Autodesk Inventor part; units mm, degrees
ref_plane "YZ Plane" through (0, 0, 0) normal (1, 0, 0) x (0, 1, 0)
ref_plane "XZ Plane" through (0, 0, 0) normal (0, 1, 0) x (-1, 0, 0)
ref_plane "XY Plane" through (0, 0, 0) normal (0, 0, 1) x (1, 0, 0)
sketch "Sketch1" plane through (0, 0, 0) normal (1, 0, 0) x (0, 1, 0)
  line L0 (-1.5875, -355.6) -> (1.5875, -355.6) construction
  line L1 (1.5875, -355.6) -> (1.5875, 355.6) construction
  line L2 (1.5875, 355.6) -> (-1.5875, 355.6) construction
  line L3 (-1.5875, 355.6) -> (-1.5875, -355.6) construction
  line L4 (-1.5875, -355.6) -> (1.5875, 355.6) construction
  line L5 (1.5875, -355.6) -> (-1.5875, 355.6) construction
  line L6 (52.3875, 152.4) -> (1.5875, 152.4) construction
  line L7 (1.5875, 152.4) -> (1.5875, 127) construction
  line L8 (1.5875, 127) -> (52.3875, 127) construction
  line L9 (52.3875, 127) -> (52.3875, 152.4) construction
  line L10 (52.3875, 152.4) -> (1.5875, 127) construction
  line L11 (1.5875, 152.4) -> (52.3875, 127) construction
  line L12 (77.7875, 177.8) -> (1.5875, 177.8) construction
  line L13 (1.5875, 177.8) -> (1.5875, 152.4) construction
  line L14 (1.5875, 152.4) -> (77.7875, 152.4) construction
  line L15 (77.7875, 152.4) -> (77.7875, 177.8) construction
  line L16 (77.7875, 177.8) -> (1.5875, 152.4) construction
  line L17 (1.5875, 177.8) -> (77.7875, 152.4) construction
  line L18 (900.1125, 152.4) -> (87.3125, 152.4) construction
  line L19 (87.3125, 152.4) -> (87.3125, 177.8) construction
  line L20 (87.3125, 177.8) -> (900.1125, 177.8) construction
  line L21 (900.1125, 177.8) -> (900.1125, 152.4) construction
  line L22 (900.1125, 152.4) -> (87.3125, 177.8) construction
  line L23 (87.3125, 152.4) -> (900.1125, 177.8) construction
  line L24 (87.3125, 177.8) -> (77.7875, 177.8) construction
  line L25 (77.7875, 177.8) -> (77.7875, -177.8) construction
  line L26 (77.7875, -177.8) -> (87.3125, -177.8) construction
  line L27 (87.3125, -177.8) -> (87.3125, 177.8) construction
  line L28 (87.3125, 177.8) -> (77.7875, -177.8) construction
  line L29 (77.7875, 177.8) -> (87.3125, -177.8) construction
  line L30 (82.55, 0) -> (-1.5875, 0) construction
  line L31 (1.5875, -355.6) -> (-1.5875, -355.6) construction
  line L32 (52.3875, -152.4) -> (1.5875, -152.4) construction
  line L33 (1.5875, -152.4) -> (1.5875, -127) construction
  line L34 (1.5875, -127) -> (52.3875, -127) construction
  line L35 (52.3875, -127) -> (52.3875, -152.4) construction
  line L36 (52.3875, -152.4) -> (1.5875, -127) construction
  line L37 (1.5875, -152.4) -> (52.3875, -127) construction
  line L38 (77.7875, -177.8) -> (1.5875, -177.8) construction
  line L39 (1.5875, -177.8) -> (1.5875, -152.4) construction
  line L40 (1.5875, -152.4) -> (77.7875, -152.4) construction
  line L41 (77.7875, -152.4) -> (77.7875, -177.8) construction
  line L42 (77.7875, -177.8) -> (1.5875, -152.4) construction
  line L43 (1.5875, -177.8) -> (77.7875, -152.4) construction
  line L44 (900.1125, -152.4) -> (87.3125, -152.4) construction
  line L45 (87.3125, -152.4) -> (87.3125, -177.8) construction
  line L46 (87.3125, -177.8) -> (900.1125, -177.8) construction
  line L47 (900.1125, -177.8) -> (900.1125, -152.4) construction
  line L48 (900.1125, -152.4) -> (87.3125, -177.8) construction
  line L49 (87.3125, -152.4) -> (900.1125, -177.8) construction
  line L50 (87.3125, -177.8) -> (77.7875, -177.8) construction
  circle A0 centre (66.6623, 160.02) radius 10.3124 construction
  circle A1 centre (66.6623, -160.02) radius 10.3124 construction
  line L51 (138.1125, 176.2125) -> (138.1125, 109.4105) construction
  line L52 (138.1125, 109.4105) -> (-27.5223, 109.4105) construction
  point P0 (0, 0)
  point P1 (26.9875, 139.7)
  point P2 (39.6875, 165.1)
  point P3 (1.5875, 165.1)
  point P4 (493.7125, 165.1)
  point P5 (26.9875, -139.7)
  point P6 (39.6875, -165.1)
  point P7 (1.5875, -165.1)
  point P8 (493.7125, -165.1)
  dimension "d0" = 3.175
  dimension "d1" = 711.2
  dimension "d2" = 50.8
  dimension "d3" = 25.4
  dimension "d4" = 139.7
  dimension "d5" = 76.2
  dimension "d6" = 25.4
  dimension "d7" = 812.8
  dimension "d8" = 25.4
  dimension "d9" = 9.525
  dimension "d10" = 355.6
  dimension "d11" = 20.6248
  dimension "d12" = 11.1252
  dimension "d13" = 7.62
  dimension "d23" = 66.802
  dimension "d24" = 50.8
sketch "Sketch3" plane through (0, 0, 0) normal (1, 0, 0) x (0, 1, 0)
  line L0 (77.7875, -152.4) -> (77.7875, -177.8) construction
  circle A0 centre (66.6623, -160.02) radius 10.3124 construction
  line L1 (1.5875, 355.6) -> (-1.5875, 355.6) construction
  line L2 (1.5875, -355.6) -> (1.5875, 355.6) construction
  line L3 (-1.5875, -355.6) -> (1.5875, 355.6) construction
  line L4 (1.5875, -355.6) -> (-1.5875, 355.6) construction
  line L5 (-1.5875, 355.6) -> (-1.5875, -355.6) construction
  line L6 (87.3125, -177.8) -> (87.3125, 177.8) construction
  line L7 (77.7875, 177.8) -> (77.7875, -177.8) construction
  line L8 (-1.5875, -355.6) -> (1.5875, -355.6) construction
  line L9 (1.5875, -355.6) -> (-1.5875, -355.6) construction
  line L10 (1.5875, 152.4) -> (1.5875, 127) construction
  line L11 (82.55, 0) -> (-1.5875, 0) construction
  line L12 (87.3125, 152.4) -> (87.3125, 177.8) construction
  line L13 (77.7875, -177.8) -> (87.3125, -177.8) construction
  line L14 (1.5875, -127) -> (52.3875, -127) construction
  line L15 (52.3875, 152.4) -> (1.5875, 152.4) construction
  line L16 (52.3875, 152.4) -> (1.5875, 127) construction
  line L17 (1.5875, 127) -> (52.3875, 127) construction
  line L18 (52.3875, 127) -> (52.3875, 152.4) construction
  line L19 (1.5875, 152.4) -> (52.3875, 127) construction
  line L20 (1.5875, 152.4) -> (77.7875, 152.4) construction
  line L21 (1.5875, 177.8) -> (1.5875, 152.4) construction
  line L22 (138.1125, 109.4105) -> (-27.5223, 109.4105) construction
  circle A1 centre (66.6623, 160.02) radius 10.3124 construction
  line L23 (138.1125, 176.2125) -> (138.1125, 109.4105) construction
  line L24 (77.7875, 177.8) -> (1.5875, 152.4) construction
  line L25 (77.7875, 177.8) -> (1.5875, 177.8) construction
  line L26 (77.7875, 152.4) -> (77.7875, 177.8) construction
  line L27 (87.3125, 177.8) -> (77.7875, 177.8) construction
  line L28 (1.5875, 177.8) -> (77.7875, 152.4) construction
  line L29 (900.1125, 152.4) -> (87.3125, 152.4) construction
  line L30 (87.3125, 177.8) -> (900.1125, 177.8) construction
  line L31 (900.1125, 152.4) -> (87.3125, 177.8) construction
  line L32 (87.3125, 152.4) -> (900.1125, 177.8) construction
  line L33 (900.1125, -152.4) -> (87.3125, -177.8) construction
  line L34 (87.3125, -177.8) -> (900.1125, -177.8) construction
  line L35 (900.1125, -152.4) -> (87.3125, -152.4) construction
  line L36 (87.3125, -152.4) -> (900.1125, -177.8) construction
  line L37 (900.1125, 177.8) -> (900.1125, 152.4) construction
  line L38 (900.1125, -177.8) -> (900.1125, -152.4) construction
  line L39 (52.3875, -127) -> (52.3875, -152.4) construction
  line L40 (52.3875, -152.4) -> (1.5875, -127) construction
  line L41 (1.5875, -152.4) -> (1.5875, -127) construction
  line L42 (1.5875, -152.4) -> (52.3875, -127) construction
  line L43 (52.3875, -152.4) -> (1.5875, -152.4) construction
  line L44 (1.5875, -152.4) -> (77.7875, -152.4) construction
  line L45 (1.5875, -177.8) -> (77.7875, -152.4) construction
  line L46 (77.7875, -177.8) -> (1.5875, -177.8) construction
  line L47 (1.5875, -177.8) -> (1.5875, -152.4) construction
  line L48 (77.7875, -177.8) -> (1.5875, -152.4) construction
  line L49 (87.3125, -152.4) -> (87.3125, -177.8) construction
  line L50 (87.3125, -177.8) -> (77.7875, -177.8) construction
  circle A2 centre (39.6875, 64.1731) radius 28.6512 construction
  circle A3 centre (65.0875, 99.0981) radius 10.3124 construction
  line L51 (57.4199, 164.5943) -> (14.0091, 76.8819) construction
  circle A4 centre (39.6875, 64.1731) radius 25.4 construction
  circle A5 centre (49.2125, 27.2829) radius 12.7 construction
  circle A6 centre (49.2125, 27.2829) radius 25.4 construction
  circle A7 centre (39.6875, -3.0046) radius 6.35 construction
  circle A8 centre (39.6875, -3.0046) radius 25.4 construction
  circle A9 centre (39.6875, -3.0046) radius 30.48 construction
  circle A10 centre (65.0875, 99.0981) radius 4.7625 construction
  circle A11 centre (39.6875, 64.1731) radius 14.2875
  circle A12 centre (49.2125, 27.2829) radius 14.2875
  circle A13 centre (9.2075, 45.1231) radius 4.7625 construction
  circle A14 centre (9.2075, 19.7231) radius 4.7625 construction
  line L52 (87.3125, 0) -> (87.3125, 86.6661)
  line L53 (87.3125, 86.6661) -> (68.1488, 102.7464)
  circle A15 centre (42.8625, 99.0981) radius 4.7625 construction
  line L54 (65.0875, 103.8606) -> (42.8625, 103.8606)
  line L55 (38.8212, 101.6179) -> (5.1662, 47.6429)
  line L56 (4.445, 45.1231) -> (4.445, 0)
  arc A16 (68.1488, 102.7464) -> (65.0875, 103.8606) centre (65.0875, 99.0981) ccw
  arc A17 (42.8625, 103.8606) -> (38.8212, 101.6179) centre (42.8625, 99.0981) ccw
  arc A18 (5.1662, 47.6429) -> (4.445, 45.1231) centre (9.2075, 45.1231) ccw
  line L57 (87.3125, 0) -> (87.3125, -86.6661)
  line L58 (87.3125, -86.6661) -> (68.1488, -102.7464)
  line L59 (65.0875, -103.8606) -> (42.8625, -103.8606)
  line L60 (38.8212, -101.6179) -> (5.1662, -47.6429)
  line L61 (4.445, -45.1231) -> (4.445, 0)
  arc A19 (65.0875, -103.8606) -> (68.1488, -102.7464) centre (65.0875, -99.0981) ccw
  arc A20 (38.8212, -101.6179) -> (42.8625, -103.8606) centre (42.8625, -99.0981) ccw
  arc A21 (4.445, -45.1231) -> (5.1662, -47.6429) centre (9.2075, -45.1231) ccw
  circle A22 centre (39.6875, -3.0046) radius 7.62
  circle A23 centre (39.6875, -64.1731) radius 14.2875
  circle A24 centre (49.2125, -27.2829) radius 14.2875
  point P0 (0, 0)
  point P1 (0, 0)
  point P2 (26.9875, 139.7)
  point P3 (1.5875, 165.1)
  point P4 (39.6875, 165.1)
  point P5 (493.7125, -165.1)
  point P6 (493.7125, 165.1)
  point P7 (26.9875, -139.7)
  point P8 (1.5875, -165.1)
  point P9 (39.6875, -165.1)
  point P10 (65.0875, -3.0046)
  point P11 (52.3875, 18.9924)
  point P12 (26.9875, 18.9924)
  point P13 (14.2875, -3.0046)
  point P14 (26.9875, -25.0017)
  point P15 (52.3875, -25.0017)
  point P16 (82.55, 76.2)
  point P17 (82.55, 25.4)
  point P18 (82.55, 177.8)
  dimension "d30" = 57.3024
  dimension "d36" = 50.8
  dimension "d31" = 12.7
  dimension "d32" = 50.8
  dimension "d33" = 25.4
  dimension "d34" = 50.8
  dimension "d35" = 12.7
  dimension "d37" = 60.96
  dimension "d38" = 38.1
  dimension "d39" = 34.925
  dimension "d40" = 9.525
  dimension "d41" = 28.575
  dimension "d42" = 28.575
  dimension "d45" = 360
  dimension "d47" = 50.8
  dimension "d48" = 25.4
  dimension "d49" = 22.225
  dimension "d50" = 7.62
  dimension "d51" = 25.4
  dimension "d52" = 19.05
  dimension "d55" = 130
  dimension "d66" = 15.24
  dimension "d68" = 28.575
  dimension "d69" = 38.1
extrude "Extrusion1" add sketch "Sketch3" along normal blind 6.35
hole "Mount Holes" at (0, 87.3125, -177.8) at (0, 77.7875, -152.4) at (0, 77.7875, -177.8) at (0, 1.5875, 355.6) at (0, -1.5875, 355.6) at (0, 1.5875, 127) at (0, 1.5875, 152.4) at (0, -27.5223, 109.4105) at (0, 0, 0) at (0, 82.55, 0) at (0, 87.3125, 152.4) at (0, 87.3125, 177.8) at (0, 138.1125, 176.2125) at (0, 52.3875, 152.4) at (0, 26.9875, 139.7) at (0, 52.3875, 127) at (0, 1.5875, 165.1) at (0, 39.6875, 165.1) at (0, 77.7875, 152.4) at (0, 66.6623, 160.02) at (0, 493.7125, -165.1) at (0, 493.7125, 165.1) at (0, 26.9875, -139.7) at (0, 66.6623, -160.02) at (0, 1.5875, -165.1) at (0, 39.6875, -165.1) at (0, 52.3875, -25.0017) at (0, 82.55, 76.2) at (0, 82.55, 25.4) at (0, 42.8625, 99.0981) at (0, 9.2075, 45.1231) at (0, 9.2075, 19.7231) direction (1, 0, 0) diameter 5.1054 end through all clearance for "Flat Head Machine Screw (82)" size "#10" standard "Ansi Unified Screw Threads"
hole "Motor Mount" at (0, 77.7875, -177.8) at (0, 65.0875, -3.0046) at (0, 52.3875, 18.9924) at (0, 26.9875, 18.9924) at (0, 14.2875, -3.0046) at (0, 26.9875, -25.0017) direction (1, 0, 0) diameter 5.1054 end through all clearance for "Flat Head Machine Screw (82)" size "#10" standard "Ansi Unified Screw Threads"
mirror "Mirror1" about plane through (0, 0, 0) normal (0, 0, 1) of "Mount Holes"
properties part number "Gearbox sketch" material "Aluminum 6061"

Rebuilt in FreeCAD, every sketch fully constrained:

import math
import FreeCAD as App
import Part
import Sketcher
from FreeCAD import Vector
Q = App.Units.Quantity

doc = App.newDocument("Part")
body = doc.addObject("PartDesign::Body", "Body")

sketch1 = body.newObject("Sketcher::SketchObject", "Sketch")
sketch1.AttachmentSupport = (doc.getObject("YZ_Plane"), [""])
sketch1.MapMode = "FlatFace"
sketch1.addGeometry([
    Part.LineSegment(Vector(87.3, -86.7, 0), Vector(87.3, 86.7, 0)),
    Part.LineSegment(Vector(87.3, 86.7, 0), Vector(68.1, 102.7, 0)),
    Part.ArcOfCircle(Part.Circle(Vector(65.1, 99.1, 0), Vector(0, 0, 1), 4.8), math.radians(50), math.radians(90)),
    Part.LineSegment(Vector(65.1, 103.9, 0), Vector(42.9, 103.9, 0)),
    Part.ArcOfCircle(Part.Circle(Vector(42.9, 99.1, 0), Vector(0, 0, 1), 4.8), math.radians(90), math.radians(148)),
    Part.LineSegment(Vector(38.8, 101.6, 0), Vector(5.2, 47.6, 0)),
    Part.ArcOfCircle(Part.Circle(Vector(9.2, 45.1, 0), Vector(0, 0, 1), 4.8), math.radians(148), math.radians(180)),
    Part.LineSegment(Vector(4.4, 45.1, 0), Vector(4.4, -45.1, 0)),
    Part.ArcOfCircle(Part.Circle(Vector(9.2, -45.1, 0), Vector(0, 0, 1), 4.8), math.radians(180), math.radians(212)),
    Part.LineSegment(Vector(5.2, -47.6, 0), Vector(38.8, -101.6, 0)),
    Part.ArcOfCircle(Part.Circle(Vector(42.9, -99.1, 0), Vector(0, 0, 1), 4.8), math.radians(-148), math.radians(-90)),
    Part.LineSegment(Vector(42.9, -103.9, 0), Vector(65.1, -103.9, 0)),
    Part.ArcOfCircle(Part.Circle(Vector(65.1, -99.1, 0), Vector(0, 0, 1), 4.8), math.radians(-90), math.radians(-50)),
    Part.LineSegment(Vector(68.1, -102.7, 0), Vector(87.3, -86.7, 0)),
    Part.Circle(Vector(39.7, -64.2, 0), Vector(0, 0, 1), 14.3),
    Part.Circle(Vector(39.7, -3, 0), Vector(0, 0, 1), 7.6),
    Part.Circle(Vector(49.2, -27.3, 0), Vector(0, 0, 1), 14.3),
    Part.Circle(Vector(39.7, 64.2, 0), Vector(0, 0, 1), 14.3),
    Part.Circle(Vector(49.2, 27.3, 0), Vector(0, 0, 1), 14.3),
], False)
sketch1.addConstraint([
    Sketcher.Constraint("Coincident", 0, 2, 1, 1),
    Sketcher.Constraint("Tangent", 1, 2, 2, 1),
    Sketcher.Constraint("Tangent", 2, 2, 3, 1),
    Sketcher.Constraint("Tangent", 3, 2, 4, 1),
    Sketcher.Constraint("Tangent", 4, 2, 5, 1),
    Sketcher.Constraint("Tangent", 5, 2, 6, 1),
    Sketcher.Constraint("Tangent", 6, 2, 7, 1),
    Sketcher.Constraint("Tangent", 7, 2, 8, 1),
    Sketcher.Constraint("Tangent", 8, 2, 9, 1),
    Sketcher.Constraint("Tangent", 9, 2, 10, 1),
    Sketcher.Constraint("Tangent", 10, 2, 11, 1),
    Sketcher.Constraint("Tangent", 11, 2, 12, 1),
    Sketcher.Constraint("Tangent", 12, 2, 13, 1),
    Sketcher.Constraint("Coincident", 13, 2, 0, 1),
    Sketcher.Constraint("Vertical", 0),
    Sketcher.Constraint("Horizontal", 3),
    Sketcher.Constraint("Vertical", 7),
    Sketcher.Constraint("Horizontal", 11),
    Sketcher.Constraint("Equal", 2, 4),
    Sketcher.Constraint("Equal", 4, 6),
    Sketcher.Constraint("Equal", 6, 8),
    Sketcher.Constraint("Equal", 8, 10),
    Sketcher.Constraint("Equal", 10, 12),
    Sketcher.Constraint("Equal", 14, 16),
    Sketcher.Constraint("Equal", 16, 17),
    Sketcher.Constraint("Equal", 17, 18),
    Sketcher.Constraint("Symmetric", 4, 3, 10, 3, -1),
    Sketcher.Constraint("Symmetric", 14, 3, 17, 3, -1),
    Sketcher.Constraint("Symmetric", 16, 3, 18, 3, -1),
    Sketcher.Constraint("Symmetric", 1, 2, 12, 2, -1),
    Sketcher.Constraint("Vertical", 14, 3, 15, 3),
    Sketcher.Constraint("Vertical", 5, 2, 8, 2),
    Sketcher.Constraint("Diameter", 15, Q("0.6 in")),
    Sketcher.Constraint("Diameter", 14, Q("1.125 in")),
    Sketcher.Constraint("Radius", 2, Q("0.1875 in")),
    Sketcher.Constraint("DistanceX", 14, 3, 12, 3, Q("1 in")),
    Sketcher.Constraint("DistanceX", 18, 3, 0, 2, Q("1.5 in")),
    Sketcher.Constraint("DistanceX", 3, 2, 3, 1, Q("0.875 in")),
    Sketcher.Constraint("DistanceY", 14, 3, 8, 3, Q("0.75 in")),
    Sketcher.Constraint("Angle", 1, Q("140 deg")),
    Sketcher.Constraint("DistanceY", 10, 3, 14, 3, Q("1.375 in")),
    Sketcher.Constraint("DistanceX", 15, 3, 16, 3, Q("0.375 in")),
    Sketcher.Constraint("DistanceX", 6, 3, 2, 3, Q("2.2 in")),
    Sketcher.Constraint("DistanceY", 7, 2, 7, 1, Q("3.553 in")),
    Sketcher.Constraint("DistanceX", -1, 1, 2, 3, Q("2.5625 in")),
    Sketcher.Constraint("DistanceY", 18, 3, 1, 2, Q("2.971 in")),
    Sketcher.Constraint("DistanceY", 15, 3, 5, 2, Q("1.994 in")),
])
pad1 = body.newObject("PartDesign::Pad", "Pad")
pad1.Profile = sketch1
pad1.Length = Q("0.25 in")

sketch2 = body.newObject("Sketcher::SketchObject", "Sketch001")
sketch2.AttachmentSupport = (doc.getObject("YZ_Plane"), [""])
sketch2.MapMode = "FlatFace"
sketch2.addGeometry([
    Part.Circle(Vector(87.3, -177.8, 0), Vector(0, 0, 1), 2.6),
    Part.Circle(Vector(77.8, -152.4, 0), Vector(0, 0, 1), 2.6),
    Part.Circle(Vector(77.8, -177.8, 0), Vector(0, 0, 1), 2.6),
    Part.Circle(Vector(1.6, 355.6, 0), Vector(0, 0, 1), 2.6),
    Part.Circle(Vector(-1.6, 355.6, 0), Vector(0, 0, 1), 2.6),
    Part.Circle(Vector(1.6, 127, 0), Vector(0, 0, 1), 2.6),
    Part.Circle(Vector(1.6, 152.4, 0), Vector(0, 0, 1), 2.6),
    Part.Circle(Vector(-27.5, 109.4, 0), Vector(0, 0, 1), 2.6),
    Part.Circle(Vector(0, 0, 0), Vector(0, 0, 1), 2.6),
    Part.Circle(Vector(82.5, 0, 0), Vector(0, 0, 1), 2.6),
    Part.Circle(Vector(87.3, 152.4, 0), Vector(0, 0, 1), 2.6),
    Part.Circle(Vector(87.3, 177.8, 0), Vector(0, 0, 1), 2.6),
    Part.Circle(Vector(138.1, 176.2, 0), Vector(0, 0, 1), 2.6),
    Part.Circle(Vector(52.4, 152.4, 0), Vector(0, 0, 1), 2.6),
    Part.Circle(Vector(27, 139.7, 0), Vector(0, 0, 1), 2.6),
    Part.Circle(Vector(52.4, 127, 0), Vector(0, 0, 1), 2.6),
    Part.Circle(Vector(1.6, 165.1, 0), Vector(0, 0, 1), 2.6),
    Part.Circle(Vector(39.7, 165.1, 0), Vector(0, 0, 1), 2.6),
    Part.Circle(Vector(77.8, 152.4, 0), Vector(0, 0, 1), 2.6),
    Part.Circle(Vector(66.7, 160, 0), Vector(0, 0, 1), 2.6),
    Part.Circle(Vector(493.7, -165.1, 0), Vector(0, 0, 1), 2.6),
    Part.Circle(Vector(493.7, 165.1, 0), Vector(0, 0, 1), 2.6),
    Part.Circle(Vector(27, -139.7, 0), Vector(0, 0, 1), 2.6),
    Part.Circle(Vector(66.7, -160, 0), Vector(0, 0, 1), 2.6),
    Part.Circle(Vector(1.6, -165.1, 0), Vector(0, 0, 1), 2.6),
    Part.Circle(Vector(39.7, -165.1, 0), Vector(0, 0, 1), 2.6),
    Part.Circle(Vector(52.4, -25, 0), Vector(0, 0, 1), 2.6),
    Part.Circle(Vector(82.5, 76.2, 0), Vector(0, 0, 1), 2.6),
    Part.Circle(Vector(82.5, 25.4, 0), Vector(0, 0, 1), 2.6),
    Part.Circle(Vector(42.9, 99.1, 0), Vector(0, 0, 1), 2.6),
    Part.Circle(Vector(9.2, 45.1, 0), Vector(0, 0, 1), 2.6),
    Part.Circle(Vector(9.2, 19.7, 0), Vector(0, 0, 1), 2.6),
], False)
sketch2.addConstraint([
    Sketcher.Constraint("Coincident", 8, 3, -1, 1),
    Sketcher.Constraint("Equal", 0, 1),
    Sketcher.Constraint("Equal", 1, 2),
    Sketcher.Constraint("Equal", 2, 3),
    Sketcher.Constraint("Equal", 3, 4),
    Sketcher.Constraint("Equal", 4, 5),
    Sketcher.Constraint("Equal", 5, 6),
    Sketcher.Constraint("Equal", 6, 7),
    Sketcher.Constraint("Equal", 7, 8),
    Sketcher.Constraint("Equal", 8, 9),
    Sketcher.Constraint("Equal", 9, 10),
    Sketcher.Constraint("Equal", 10, 11),
    Sketcher.Constraint("Equal", 11, 12),
    Sketcher.Constraint("Equal", 12, 13),
    Sketcher.Constraint("Equal", 13, 14),
    Sketcher.Constraint("Equal", 14, 15),
    Sketcher.Constraint("Equal", 15, 16),
    Sketcher.Constraint("Equal", 16, 17),
    Sketcher.Constraint("Equal", 17, 18),
    Sketcher.Constraint("Equal", 18, 19),
    Sketcher.Constraint("Equal", 19, 20),
    Sketcher.Constraint("Equal", 20, 21),
    Sketcher.Constraint("Equal", 21, 22),
    Sketcher.Constraint("Equal", 22, 23),
    Sketcher.Constraint("Equal", 23, 24),
    Sketcher.Constraint("Equal", 24, 25),
    Sketcher.Constraint("Equal", 25, 26),
    Sketcher.Constraint("Equal", 26, 27),
    Sketcher.Constraint("Equal", 27, 28),
    Sketcher.Constraint("Equal", 28, 29),
    Sketcher.Constraint("Equal", 29, 30),
    Sketcher.Constraint("Equal", 30, 31),
    Sketcher.Constraint("Symmetric", 3, 3, 4, 3, -2),
    Sketcher.Constraint("Symmetric", 0, 3, 11, 3, -1),
    Sketcher.Constraint("Symmetric", 1, 3, 18, 3, -1),
    Sketcher.Constraint("Symmetric", 20, 3, 21, 3, -1),
    Sketcher.Constraint("Symmetric", 14, 3, 22, 3, -1),
    Sketcher.Constraint("Symmetric", 19, 3, 23, 3, -1),
    Sketcher.Constraint("Symmetric", 16, 3, 24, 3, -1),
    Sketcher.Constraint("Symmetric", 17, 3, 25, 3, -1),
    Sketcher.Constraint("PointOnObject", 9, 3, -1),
    Sketcher.Constraint("Horizontal", 0, 3, 2, 3),
    Sketcher.Constraint("Horizontal", 6, 3, 10, 3),
    Sketcher.Constraint("Horizontal", 10, 3, 13, 3),
    Sketcher.Constraint("Horizontal", 5, 3, 15, 3),
    Sketcher.Constraint("Horizontal", 16, 3, 17, 3),
    Sketcher.Constraint("Horizontal", 13, 3, 18, 3),
    Sketcher.Constraint("Horizontal", 17, 3, 21, 3),
    Sketcher.Constraint("Vertical", 1, 3, 2, 3),
    Sketcher.Constraint("Vertical", 3, 3, 5, 3),
    Sketcher.Constraint("Vertical", 5, 3, 6, 3),
    Sketcher.Constraint("Vertical", 0, 3, 10, 3),
    Sketcher.Constraint("Vertical", 13, 3, 15, 3),
    Sketcher.Constraint("Vertical", 6, 3, 16, 3),
    Sketcher.Constraint("Vertical", 15, 3, 26, 3),
    Sketcher.Constraint("Vertical", 9, 3, 27, 3),
    Sketcher.Constraint("Vertical", 27, 3, 28, 3),
    Sketcher.Constraint("Vertical", 30, 3, 31, 3),
    Sketcher.Constraint("Diameter", 0, Q("0.201 in")),
    Sketcher.Constraint("DistanceY", 0, 3, -1, 1, Q("7 in")),
    Sketcher.Constraint("DistanceY", 1, 3, -1, 1, Q("6 in")),
    Sketcher.Constraint("DistanceY", -1, 1, 3, 3, Q("14 in")),
    Sketcher.Constraint("DistanceY", -1, 1, 5, 3, Q("5 in")),
    Sketcher.Constraint("DistanceY", -1, 1, 27, 3, Q("3 in")),
    Sketcher.Constraint("DistanceY", -1, 1, 28, 3, Q("1 in")),
    Sketcher.Constraint("DistanceX", 3, 3, 1, 3, Q("3 in")),
    Sketcher.Constraint("DistanceX", 11, 3, 12, 3, Q("2 in")),
    Sketcher.Constraint("DistanceX", 6, 3, 13, 3, Q("2 in")),
    Sketcher.Constraint("DistanceX", 5, 3, 14, 3, Q("1 in")),
    Sketcher.Constraint("DistanceY", 14, 3, 16, 3, Q("1 in")),
    Sketcher.Constraint("DistanceX", 0, 3, 20, 3, Q("16 in")),
    Sketcher.Constraint("DistanceY", 20, 3, 21, 3, Q("13 in")),
    Sketcher.Constraint("DistanceY", 31, 3, 30, 3, Q("1 in")),
    Sketcher.Constraint("DistanceY", -1, 1, 19, 3, Q("6.3 in")),
    Sketcher.Constraint("DistanceX", 4, 3, 0, 3, Q("3.5 in")),
    Sketcher.Constraint("DistanceX", 17, 3, 13, 3, Q("0.5 in")),
    Sketcher.Constraint("DistanceX", 31, 3, 26, 3, Q("1.7 in")),
    Sketcher.Constraint("DistanceX", -1, 1, 9, 3, Q("3.25 in")),
    Sketcher.Constraint("DistanceY", 7, 3, 12, 3, Q("2.63 in")),
    Sketcher.Constraint("DistanceX", -1, 1, 0, 3, Q("3.4375 in")),
    Sketcher.Constraint("DistanceY", -1, 1, 12, 3, Q("6.9375 in")),
    Sketcher.Constraint("DistanceX", -1, 1, 29, 3, Q("1.6875 in")),
    Sketcher.Constraint("DistanceX", 19, 3, 18, 3, Q("0.438 in")),
    Sketcher.Constraint("DistanceY", 30, 3, 29, 3, Q("2.125 in")),
    Sketcher.Constraint("DistanceY", 30, 3, 7, 3, Q("2.531 in")),
    Sketcher.Constraint("DistanceX", 7, 3, -1, 1, 27.5223),
    Sketcher.Constraint("DistanceY", 26, 3, -1, 1, 25.0017),
])
doc.recompute()
hole = body.newObject("PartDesign::Hole", "Hole")
hole.Profile = sketch2
hole.ThreadType = "None"
hole.Diameter = Q("0.201 in")
hole.DepthType = "ThroughAll"
hole.Reversed = True

sketch3 = body.newObject("Sketcher::SketchObject", "Sketch002")
sketch3.AttachmentSupport = (doc.getObject("YZ_Plane"), [""])
sketch3.MapMode = "FlatFace"
sketch3.addGeometry([
    Part.Circle(Vector(77.8, -177.8, 0), Vector(0, 0, 1), 2.6),
    Part.Circle(Vector(65.1, -3, 0), Vector(0, 0, 1), 2.6),
    Part.Circle(Vector(52.4, 19, 0), Vector(0, 0, 1), 2.6),
    Part.Circle(Vector(27, 19, 0), Vector(0, 0, 1), 2.6),
    Part.Circle(Vector(14.3, -3, 0), Vector(0, 0, 1), 2.6),
    Part.Circle(Vector(27, -25, 0), Vector(0, 0, 1), 2.6),
], False)
sketch3.addConstraint([
    Sketcher.Constraint("Equal", 0, 1),
    Sketcher.Constraint("Equal", 1, 2),
    Sketcher.Constraint("Equal", 2, 3),
    Sketcher.Constraint("Equal", 3, 4),
    Sketcher.Constraint("Equal", 4, 5),
    Sketcher.Constraint("Horizontal", 2, 3, 3, 3),
    Sketcher.Constraint("Horizontal", 1, 3, 4, 3),
    Sketcher.Constraint("Vertical", 3, 3, 5, 3),
    Sketcher.Constraint("Diameter", 0, Q("0.201 in")),
    Sketcher.Constraint("DistanceY", 0, 3, -1, 1, Q("7 in")),
    Sketcher.Constraint("DistanceX", 2, 3, 0, 3, Q("1 in")),
    Sketcher.Constraint("DistanceX", 3, 3, 2, 3, Q("1 in")),
    Sketcher.Constraint("DistanceX", 4, 3, 1, 3, Q("2 in")),
    Sketcher.Constraint("DistanceX", 1, 3, 0, 3, Q("0.5 in")),
    Sketcher.Constraint("DistanceX", -1, 1, 0, 3, Q("3.0625 in")),
    Sketcher.Constraint("DistanceY", 1, 3, -1, 1, Q("0.1183 in")),
    Sketcher.Constraint("DistanceY", -1, 1, 2, 3, 18.9924),
    Sketcher.Constraint("DistanceY", 5, 3, -1, 1, 25.0017),
])
doc.recompute()
hole2 = body.newObject("PartDesign::Hole", "Hole001")
hole2.Profile = sketch3
hole2.ThreadType = "None"
hole2.Diameter = Q("0.201 in")
hole2.DepthType = "ThroughAll"
hole2.Reversed = True
doc.recompute()

mirrored = body.newObject("PartDesign::Mirrored", "Mirrored")
mirrored.Originals = [hole]
mirrored.MirrorPlane = (doc.getObject("XY_Plane"), [""])
body.Tip = mirrored

doc.recompute()
